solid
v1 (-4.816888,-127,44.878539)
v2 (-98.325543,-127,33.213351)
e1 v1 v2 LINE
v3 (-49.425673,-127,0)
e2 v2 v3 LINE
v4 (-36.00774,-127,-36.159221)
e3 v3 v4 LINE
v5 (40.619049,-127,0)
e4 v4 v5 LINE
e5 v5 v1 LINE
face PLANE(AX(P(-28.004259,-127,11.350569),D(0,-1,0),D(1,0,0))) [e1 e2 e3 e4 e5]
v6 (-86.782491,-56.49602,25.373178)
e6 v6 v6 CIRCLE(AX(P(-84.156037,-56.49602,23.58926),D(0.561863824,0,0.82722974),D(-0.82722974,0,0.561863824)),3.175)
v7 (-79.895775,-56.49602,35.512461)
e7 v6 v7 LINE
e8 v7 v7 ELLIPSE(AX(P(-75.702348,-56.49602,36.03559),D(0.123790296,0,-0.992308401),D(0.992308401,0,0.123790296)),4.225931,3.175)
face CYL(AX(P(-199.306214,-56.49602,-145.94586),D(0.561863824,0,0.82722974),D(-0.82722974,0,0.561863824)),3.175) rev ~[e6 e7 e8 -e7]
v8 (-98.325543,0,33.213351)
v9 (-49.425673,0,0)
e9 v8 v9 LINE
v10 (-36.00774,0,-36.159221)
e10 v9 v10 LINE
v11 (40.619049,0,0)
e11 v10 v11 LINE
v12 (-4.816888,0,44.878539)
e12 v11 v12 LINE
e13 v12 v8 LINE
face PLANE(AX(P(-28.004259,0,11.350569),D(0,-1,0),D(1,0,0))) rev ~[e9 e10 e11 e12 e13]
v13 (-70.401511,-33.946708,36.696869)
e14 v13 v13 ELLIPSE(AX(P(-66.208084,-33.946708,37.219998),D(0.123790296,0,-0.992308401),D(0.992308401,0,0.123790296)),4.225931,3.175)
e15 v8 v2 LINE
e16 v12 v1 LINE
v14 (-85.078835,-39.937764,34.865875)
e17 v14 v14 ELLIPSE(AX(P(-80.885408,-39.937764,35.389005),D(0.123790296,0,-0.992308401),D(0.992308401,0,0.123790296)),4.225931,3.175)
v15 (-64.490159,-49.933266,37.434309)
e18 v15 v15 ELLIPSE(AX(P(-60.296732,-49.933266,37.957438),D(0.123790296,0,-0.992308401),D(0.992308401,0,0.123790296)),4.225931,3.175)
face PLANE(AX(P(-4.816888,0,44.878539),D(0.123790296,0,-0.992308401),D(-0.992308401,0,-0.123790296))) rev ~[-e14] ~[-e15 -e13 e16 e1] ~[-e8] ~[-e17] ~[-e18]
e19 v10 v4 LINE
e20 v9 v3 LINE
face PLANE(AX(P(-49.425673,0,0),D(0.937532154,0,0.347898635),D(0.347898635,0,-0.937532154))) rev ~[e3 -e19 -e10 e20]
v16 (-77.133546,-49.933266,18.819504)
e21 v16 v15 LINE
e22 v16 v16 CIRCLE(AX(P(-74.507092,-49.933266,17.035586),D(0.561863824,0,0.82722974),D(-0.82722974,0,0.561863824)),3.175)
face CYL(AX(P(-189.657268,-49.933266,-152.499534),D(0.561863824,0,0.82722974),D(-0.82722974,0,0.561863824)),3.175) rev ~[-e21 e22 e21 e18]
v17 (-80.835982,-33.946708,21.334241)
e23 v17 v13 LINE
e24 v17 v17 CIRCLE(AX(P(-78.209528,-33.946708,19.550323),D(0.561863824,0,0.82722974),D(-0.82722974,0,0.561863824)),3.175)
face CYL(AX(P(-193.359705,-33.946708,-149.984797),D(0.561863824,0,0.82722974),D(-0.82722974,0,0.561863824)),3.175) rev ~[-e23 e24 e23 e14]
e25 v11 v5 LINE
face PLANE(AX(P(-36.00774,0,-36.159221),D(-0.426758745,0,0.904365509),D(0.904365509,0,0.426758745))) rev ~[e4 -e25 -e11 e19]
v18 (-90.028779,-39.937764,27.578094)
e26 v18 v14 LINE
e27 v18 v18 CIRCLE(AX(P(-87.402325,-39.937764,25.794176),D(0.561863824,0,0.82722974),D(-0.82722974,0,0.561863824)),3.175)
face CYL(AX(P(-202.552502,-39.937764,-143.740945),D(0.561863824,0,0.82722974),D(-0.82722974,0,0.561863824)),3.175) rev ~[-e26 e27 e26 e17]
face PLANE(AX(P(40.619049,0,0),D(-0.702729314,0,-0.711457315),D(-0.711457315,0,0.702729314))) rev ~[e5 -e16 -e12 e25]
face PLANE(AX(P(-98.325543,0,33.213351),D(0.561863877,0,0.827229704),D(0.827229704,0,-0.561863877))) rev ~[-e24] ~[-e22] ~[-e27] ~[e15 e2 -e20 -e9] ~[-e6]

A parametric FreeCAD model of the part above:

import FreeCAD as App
import Part
import Sketcher

V = App.Vector
Q = App.Units.Quantity

doc = App.newDocument("Part")
params = doc.addObject("Spreadsheet::Sheet", "Params")
for row, (alias, value) in enumerate([
    ("pad1_length", "5 in"),
    ("sketch2_diameter", "0.25 in"),
    ("hole_diameter", "0.25 in"),
], start=1):
    params.set(f"A{row}", alias)
    params.set(f"B{row}", "=" + value)
    params.setAlias(f"B{row}", alias)

body = doc.addObject("PartDesign::Body", "Body")

# Sketch on XZ plane
sketch1 = body.newObject("Sketcher::SketchObject", "Sketch")
sketch1.AttachmentSupport = (doc.getObject("XZ_Plane"), [""])
sketch1.MapMode = "FlatFace"
sketch1.addGeometry([
    Part.LineSegment(V(-5, 45, 0), V(-98, 33, 0)),  # 0
    Part.LineSegment(V(-98, 33, 0), V(-49, 0, 0)),  # 1
    Part.LineSegment(V(-49, 0, 0), V(-36, -36, 0)),  # 2
    Part.LineSegment(V(-36, -36, 0), V(41, 0, 0)),  # 3
    Part.LineSegment(V(41, 0, 0), V(-5, 45, 0)),  # 4
], False)
sketch1.addConstraint([
    Sketcher.Constraint("Coincident", 0, 2, 1, 1),
    Sketcher.Constraint("Coincident", 1, 2, 2, 1),
    Sketcher.Constraint("Coincident", 2, 2, 3, 1),
    Sketcher.Constraint("Coincident", 3, 2, 4, 1),
    Sketcher.Constraint("Coincident", 4, 2, 0, 1),
    Sketcher.Constraint("PointOnObject", 1, 2, -1),
    Sketcher.Constraint("PointOnObject", 3, 2, -1),
    Sketcher.Constraint("Distance", 0, Q("94.233461 mm")),
    Sketcher.Constraint("Distance", 3, Q("84.729889 mm")),
    Sketcher.Constraint("DistanceY", -1, 1, 0, 2, Q("33.213351 mm")),
    Sketcher.Constraint("DistanceX", 2, 2, -1, 1, Q("36.00774 mm")),
    Sketcher.Constraint("DistanceY", 2, 2, -1, 1, Q("36.159221 mm")),
    Sketcher.Constraint("DistanceY", -1, 1, 4, 2, Q("44.878539 mm")),
    Sketcher.Constraint("DistanceX", 0, 2, 1, 2, Q("48.89987 mm")),
    Sketcher.Constraint("DistanceX", 0, 2, 3, 2, Q("138.944592 mm")),
])
pad1 = body.newObject("PartDesign::Pad", "Pad")
pad1.Profile = sketch1
pad1.setExpression("Length", "Params.pad1_length")

# Sketch on an angled plane
sketch2 = body.newObject("Sketcher::SketchObject", "Sketch001")
sketch2.Placement = App.Placement(V(-15.60324, 0, -22.972584), App.Rotation(V(0.82722974, 0, -0.561863824), V(0, -0.999999999, 0), V(-0.561863824, 0, -0.82722974), "ZXY"))
sketch2.addGeometry([
    Part.Circle(V(-86.8, 39.9, 0), V(0, 0, 1), 3.2),
    Part.Circle(V(-71.2, 49.9, 0), V(0, 0, 1), 3.2),
    Part.Circle(V(-75.7, 33.9, 0), V(0, 0, 1), 3.2),
    Part.Circle(V(-82.9, 56.5, 0), V(0, 0, 1), 3.2),
], False)
sketch2.addConstraint([
    Sketcher.Constraint("Equal", 0, 1),
    Sketcher.Constraint("Equal", 1, 2),
    Sketcher.Constraint("Equal", 2, 3),
    Sketcher.Constraint("Diameter", 0, Q("0.25 in")),
    Sketcher.Constraint("DistanceY", 0, 3, 3, 3, Q("0.6518998 in")),
    Sketcher.Constraint("DistanceY", 0, 3, 1, 3, Q("9.995502 mm")),
    Sketcher.Constraint("DistanceX", 1, 3, -1, 1, Q("71.206162 mm")),
    Sketcher.Constraint("DistanceX", 3, 3, -1, 1, Q("82.870329 mm")),
    Sketcher.Constraint("DistanceY", -1, 1, 3, 3, Q("56.49602 mm")),
    Sketcher.Constraint("DistanceX", 0, 3, 2, 3, Q("11.11275 mm")),
    Sketcher.Constraint("DistanceX", 3, 3, 2, 3, Q("7.188462 mm")),
    Sketcher.Constraint("DistanceY", 2, 3, 3, 3, Q("22.549312 mm")),
])
sketch2.setExpression("Constraints[3]", "Params.sketch2_diameter")
doc.recompute()
hole = body.newObject("PartDesign::Hole", "Hole")
hole.Profile = sketch2
hole.ThreadType = "None"
hole.setExpression("Diameter", "Params.hole_diameter")
hole.DepthType = "ThroughAll"

doc.recompute()
